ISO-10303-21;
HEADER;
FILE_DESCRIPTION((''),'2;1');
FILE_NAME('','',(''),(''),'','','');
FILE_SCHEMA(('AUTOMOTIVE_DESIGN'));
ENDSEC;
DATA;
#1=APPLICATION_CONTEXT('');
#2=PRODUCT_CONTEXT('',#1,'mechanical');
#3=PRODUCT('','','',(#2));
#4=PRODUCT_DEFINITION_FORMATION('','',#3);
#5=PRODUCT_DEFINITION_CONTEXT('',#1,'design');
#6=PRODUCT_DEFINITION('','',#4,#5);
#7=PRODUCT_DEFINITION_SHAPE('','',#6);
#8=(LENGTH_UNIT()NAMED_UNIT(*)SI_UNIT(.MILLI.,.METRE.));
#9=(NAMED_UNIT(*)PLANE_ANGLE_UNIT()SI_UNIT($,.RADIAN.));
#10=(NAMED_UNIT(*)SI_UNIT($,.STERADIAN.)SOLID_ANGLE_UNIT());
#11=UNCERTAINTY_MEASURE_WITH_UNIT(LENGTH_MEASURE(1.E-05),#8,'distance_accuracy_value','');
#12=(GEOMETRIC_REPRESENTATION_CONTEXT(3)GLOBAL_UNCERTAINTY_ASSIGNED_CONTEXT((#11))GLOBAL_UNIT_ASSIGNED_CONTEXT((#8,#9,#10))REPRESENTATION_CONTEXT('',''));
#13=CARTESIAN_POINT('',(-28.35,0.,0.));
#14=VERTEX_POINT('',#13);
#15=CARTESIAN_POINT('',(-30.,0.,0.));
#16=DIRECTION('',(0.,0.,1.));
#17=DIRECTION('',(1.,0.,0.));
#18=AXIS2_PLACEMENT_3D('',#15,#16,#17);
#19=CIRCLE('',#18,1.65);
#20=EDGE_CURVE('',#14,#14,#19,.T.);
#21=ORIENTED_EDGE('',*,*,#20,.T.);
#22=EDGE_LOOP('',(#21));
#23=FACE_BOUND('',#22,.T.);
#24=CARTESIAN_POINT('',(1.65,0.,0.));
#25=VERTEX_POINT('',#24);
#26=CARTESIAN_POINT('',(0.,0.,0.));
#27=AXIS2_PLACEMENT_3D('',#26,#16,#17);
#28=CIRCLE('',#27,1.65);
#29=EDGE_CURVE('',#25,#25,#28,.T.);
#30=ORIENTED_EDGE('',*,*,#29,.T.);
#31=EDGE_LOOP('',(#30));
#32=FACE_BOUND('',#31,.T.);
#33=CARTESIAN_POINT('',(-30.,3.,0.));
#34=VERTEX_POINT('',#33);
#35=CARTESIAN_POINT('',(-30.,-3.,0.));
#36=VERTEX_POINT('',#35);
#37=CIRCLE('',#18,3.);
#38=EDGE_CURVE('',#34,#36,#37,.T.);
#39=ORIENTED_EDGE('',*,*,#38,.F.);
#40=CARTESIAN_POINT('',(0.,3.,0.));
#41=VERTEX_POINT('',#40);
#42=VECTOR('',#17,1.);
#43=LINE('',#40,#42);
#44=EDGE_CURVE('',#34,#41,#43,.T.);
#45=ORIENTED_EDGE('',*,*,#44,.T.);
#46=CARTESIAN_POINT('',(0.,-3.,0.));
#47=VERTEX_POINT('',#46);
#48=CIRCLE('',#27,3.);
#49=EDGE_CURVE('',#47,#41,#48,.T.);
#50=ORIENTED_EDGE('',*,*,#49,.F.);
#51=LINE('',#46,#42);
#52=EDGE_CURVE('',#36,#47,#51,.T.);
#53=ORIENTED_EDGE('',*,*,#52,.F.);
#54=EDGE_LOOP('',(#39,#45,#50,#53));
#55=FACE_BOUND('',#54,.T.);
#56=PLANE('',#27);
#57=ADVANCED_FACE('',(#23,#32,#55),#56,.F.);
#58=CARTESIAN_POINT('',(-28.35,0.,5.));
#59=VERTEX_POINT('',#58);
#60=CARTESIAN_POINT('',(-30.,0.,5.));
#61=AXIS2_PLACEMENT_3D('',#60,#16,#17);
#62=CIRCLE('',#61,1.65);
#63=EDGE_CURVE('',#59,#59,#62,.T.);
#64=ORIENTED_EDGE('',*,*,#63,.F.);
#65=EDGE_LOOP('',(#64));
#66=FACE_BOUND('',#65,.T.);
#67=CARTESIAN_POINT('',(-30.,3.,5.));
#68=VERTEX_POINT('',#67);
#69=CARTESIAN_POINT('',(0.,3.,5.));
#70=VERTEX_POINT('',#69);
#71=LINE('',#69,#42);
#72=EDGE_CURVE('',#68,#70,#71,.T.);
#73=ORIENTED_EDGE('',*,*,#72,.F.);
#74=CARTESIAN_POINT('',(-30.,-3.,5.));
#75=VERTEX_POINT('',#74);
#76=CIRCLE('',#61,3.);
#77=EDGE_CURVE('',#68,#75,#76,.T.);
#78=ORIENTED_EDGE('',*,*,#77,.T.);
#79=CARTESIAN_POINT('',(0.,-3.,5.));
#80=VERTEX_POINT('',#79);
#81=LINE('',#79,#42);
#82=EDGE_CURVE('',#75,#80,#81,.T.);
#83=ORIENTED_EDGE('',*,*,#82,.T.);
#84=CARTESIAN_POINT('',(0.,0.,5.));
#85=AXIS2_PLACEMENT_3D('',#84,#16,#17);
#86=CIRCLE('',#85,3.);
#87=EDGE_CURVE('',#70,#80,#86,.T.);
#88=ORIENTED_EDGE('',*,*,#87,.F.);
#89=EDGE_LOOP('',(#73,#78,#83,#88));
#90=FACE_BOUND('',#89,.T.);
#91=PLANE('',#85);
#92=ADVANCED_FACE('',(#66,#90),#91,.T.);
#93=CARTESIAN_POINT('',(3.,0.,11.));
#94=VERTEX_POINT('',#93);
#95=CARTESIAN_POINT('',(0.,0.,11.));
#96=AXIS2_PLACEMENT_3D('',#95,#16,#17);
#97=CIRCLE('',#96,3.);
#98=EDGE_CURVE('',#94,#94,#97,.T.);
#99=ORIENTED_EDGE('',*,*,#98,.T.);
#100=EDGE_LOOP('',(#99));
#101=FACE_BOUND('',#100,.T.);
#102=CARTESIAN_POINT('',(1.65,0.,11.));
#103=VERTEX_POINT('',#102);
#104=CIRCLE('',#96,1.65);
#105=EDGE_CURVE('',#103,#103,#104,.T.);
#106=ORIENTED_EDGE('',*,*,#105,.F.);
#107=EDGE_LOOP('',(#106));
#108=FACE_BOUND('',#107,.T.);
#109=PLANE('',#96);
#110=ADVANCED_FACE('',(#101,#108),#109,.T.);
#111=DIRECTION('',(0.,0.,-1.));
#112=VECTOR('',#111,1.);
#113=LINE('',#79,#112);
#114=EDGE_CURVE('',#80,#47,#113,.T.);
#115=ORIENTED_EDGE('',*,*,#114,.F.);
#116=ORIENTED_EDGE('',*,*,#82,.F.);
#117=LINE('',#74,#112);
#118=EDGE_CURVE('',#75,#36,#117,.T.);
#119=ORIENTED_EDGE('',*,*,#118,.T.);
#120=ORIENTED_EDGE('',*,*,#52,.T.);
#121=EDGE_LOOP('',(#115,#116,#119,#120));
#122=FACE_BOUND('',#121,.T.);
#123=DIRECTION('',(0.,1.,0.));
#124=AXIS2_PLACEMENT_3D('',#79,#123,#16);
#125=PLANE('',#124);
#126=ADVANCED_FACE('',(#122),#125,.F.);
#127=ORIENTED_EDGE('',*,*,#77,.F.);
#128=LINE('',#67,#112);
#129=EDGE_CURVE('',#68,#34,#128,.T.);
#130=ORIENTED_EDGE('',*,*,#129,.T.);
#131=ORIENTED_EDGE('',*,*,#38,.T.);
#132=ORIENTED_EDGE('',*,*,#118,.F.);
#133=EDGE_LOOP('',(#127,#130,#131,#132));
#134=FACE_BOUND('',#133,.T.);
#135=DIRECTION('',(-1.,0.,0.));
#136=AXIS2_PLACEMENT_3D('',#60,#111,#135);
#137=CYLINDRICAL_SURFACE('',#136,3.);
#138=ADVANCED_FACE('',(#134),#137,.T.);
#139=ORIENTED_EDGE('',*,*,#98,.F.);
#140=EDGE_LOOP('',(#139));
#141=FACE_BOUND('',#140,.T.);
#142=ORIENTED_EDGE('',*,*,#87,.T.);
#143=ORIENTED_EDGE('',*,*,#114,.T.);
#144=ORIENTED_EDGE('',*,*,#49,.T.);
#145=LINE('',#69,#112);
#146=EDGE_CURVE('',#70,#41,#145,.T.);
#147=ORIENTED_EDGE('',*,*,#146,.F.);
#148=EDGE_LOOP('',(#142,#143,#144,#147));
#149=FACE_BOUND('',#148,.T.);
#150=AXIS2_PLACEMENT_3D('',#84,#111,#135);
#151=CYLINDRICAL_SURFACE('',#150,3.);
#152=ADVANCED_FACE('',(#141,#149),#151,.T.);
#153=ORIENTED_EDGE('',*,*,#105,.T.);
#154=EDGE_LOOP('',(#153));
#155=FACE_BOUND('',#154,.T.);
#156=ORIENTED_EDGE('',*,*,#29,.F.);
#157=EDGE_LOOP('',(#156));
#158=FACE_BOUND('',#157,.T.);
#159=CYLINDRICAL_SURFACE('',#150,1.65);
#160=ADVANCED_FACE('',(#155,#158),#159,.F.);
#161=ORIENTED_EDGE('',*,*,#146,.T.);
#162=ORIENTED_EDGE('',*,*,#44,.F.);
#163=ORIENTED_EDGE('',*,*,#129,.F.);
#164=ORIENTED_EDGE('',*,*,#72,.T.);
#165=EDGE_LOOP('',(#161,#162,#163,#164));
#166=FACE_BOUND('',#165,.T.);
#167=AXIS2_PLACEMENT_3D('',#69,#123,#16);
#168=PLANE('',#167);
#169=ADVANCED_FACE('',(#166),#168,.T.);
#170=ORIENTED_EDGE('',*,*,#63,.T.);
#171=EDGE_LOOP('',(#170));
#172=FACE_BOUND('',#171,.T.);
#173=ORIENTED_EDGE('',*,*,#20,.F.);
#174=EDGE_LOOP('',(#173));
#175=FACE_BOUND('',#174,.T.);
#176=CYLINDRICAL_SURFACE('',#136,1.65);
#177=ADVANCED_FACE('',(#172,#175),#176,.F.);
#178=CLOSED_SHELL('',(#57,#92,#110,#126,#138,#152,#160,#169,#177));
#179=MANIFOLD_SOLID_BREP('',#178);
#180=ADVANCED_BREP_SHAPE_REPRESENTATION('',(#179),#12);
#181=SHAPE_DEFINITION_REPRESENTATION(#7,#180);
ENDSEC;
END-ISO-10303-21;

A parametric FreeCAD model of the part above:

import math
import FreeCAD as App
import Part
import Sketcher

doc = App.newDocument("Part")
body = doc.addObject("PartDesign::Body", "Body")

# Sketch on XY plane
sketch1 = body.newObject("Sketcher::SketchObject", "Sketch")
sketch1.AttachmentSupport = (doc.getObject("XY_Plane"), [""])
sketch1.MapMode = "FlatFace"
sketch1.addGeometry([
    Part.LineSegment(App.Vector(0, 3, 0), App.Vector(-30, 3, 0)),  # 0
    Part.ArcOfCircle(Part.Circle(App.Vector(-30, 0, 0), App.Vector(0, 0, 1), 3), math.radians(90), math.radians(270)),  # 1
    Part.LineSegment(App.Vector(-30, -3, 0), App.Vector(0, -3, 0)),  # 2
    Part.ArcOfCircle(Part.Circle(App.Vector(0, 0, 0), App.Vector(0, 0, 1), 3), math.radians(-90), math.radians(90)),  # 3
    Part.Circle(App.Vector(-30, 0, 0), App.Vector(0, 0, 1), 1.65),  # 4
    Part.Circle(App.Vector(0, 0, 0), App.Vector(0, 0, 1), 1.65),  # 5
], False)
sketch1.addConstraint([
    Sketcher.Constraint("Tangent", 0, 2, 1, 1),
    Sketcher.Constraint("Tangent", 1, 2, 2, 1),
    Sketcher.Constraint("Tangent", 2, 2, 3, 1),
    Sketcher.Constraint("Tangent", 3, 2, 0, 1),
    Sketcher.Constraint("Horizontal", 0),
    Sketcher.Constraint("Horizontal", 2),
    Sketcher.Constraint("Coincident", 3, 3, -1, 1),
    Sketcher.Constraint("Coincident", 5, 3, -1, 1),
    Sketcher.Constraint("Coincident", 4, 3, 1, 3),
    Sketcher.Constraint("Equal", 4, 5),
    Sketcher.Constraint("Radius", 1, 3.0),
    Sketcher.Constraint("Diameter", 4, 3.3),
    Sketcher.Constraint("DistanceX", 0, 2, 0, 1, 30.0),
])
pad1 = body.newObject("PartDesign::Pad", "Pad")
pad1.Profile = sketch1
pad1.Length = 5

# Sketch on XY plane
sketch2 = body.newObject("Sketcher::SketchObject", "Sketch001")
sketch2.AttachmentSupport = (doc.getObject("XY_Plane"), [""])
sketch2.MapMode = "FlatFace"
sketch2.AttachmentOffset = App.Placement(App.Vector(0, 0, 5), App.Rotation())
sketch2.addGeometry([
    Part.Circle(App.Vector(0, 0, 0), App.Vector(0, 0, 1), 3),
    Part.Circle(App.Vector(0, 0, 0), App.Vector(0, 0, 1), 1.65),
], False)
sketch2.addConstraint([
    Sketcher.Constraint("Coincident", 0, 3, -1, 1),
    Sketcher.Constraint("Coincident", 1, 3, -1, 1),
    Sketcher.Constraint("Diameter", 0, 6.0),
    Sketcher.Constraint("Diameter", 1, 3.3),
])
pad2 = body.newObject("PartDesign::Pad", "Pad001")
pad2.Profile = sketch2
pad2.Length = 6

doc.recompute()
